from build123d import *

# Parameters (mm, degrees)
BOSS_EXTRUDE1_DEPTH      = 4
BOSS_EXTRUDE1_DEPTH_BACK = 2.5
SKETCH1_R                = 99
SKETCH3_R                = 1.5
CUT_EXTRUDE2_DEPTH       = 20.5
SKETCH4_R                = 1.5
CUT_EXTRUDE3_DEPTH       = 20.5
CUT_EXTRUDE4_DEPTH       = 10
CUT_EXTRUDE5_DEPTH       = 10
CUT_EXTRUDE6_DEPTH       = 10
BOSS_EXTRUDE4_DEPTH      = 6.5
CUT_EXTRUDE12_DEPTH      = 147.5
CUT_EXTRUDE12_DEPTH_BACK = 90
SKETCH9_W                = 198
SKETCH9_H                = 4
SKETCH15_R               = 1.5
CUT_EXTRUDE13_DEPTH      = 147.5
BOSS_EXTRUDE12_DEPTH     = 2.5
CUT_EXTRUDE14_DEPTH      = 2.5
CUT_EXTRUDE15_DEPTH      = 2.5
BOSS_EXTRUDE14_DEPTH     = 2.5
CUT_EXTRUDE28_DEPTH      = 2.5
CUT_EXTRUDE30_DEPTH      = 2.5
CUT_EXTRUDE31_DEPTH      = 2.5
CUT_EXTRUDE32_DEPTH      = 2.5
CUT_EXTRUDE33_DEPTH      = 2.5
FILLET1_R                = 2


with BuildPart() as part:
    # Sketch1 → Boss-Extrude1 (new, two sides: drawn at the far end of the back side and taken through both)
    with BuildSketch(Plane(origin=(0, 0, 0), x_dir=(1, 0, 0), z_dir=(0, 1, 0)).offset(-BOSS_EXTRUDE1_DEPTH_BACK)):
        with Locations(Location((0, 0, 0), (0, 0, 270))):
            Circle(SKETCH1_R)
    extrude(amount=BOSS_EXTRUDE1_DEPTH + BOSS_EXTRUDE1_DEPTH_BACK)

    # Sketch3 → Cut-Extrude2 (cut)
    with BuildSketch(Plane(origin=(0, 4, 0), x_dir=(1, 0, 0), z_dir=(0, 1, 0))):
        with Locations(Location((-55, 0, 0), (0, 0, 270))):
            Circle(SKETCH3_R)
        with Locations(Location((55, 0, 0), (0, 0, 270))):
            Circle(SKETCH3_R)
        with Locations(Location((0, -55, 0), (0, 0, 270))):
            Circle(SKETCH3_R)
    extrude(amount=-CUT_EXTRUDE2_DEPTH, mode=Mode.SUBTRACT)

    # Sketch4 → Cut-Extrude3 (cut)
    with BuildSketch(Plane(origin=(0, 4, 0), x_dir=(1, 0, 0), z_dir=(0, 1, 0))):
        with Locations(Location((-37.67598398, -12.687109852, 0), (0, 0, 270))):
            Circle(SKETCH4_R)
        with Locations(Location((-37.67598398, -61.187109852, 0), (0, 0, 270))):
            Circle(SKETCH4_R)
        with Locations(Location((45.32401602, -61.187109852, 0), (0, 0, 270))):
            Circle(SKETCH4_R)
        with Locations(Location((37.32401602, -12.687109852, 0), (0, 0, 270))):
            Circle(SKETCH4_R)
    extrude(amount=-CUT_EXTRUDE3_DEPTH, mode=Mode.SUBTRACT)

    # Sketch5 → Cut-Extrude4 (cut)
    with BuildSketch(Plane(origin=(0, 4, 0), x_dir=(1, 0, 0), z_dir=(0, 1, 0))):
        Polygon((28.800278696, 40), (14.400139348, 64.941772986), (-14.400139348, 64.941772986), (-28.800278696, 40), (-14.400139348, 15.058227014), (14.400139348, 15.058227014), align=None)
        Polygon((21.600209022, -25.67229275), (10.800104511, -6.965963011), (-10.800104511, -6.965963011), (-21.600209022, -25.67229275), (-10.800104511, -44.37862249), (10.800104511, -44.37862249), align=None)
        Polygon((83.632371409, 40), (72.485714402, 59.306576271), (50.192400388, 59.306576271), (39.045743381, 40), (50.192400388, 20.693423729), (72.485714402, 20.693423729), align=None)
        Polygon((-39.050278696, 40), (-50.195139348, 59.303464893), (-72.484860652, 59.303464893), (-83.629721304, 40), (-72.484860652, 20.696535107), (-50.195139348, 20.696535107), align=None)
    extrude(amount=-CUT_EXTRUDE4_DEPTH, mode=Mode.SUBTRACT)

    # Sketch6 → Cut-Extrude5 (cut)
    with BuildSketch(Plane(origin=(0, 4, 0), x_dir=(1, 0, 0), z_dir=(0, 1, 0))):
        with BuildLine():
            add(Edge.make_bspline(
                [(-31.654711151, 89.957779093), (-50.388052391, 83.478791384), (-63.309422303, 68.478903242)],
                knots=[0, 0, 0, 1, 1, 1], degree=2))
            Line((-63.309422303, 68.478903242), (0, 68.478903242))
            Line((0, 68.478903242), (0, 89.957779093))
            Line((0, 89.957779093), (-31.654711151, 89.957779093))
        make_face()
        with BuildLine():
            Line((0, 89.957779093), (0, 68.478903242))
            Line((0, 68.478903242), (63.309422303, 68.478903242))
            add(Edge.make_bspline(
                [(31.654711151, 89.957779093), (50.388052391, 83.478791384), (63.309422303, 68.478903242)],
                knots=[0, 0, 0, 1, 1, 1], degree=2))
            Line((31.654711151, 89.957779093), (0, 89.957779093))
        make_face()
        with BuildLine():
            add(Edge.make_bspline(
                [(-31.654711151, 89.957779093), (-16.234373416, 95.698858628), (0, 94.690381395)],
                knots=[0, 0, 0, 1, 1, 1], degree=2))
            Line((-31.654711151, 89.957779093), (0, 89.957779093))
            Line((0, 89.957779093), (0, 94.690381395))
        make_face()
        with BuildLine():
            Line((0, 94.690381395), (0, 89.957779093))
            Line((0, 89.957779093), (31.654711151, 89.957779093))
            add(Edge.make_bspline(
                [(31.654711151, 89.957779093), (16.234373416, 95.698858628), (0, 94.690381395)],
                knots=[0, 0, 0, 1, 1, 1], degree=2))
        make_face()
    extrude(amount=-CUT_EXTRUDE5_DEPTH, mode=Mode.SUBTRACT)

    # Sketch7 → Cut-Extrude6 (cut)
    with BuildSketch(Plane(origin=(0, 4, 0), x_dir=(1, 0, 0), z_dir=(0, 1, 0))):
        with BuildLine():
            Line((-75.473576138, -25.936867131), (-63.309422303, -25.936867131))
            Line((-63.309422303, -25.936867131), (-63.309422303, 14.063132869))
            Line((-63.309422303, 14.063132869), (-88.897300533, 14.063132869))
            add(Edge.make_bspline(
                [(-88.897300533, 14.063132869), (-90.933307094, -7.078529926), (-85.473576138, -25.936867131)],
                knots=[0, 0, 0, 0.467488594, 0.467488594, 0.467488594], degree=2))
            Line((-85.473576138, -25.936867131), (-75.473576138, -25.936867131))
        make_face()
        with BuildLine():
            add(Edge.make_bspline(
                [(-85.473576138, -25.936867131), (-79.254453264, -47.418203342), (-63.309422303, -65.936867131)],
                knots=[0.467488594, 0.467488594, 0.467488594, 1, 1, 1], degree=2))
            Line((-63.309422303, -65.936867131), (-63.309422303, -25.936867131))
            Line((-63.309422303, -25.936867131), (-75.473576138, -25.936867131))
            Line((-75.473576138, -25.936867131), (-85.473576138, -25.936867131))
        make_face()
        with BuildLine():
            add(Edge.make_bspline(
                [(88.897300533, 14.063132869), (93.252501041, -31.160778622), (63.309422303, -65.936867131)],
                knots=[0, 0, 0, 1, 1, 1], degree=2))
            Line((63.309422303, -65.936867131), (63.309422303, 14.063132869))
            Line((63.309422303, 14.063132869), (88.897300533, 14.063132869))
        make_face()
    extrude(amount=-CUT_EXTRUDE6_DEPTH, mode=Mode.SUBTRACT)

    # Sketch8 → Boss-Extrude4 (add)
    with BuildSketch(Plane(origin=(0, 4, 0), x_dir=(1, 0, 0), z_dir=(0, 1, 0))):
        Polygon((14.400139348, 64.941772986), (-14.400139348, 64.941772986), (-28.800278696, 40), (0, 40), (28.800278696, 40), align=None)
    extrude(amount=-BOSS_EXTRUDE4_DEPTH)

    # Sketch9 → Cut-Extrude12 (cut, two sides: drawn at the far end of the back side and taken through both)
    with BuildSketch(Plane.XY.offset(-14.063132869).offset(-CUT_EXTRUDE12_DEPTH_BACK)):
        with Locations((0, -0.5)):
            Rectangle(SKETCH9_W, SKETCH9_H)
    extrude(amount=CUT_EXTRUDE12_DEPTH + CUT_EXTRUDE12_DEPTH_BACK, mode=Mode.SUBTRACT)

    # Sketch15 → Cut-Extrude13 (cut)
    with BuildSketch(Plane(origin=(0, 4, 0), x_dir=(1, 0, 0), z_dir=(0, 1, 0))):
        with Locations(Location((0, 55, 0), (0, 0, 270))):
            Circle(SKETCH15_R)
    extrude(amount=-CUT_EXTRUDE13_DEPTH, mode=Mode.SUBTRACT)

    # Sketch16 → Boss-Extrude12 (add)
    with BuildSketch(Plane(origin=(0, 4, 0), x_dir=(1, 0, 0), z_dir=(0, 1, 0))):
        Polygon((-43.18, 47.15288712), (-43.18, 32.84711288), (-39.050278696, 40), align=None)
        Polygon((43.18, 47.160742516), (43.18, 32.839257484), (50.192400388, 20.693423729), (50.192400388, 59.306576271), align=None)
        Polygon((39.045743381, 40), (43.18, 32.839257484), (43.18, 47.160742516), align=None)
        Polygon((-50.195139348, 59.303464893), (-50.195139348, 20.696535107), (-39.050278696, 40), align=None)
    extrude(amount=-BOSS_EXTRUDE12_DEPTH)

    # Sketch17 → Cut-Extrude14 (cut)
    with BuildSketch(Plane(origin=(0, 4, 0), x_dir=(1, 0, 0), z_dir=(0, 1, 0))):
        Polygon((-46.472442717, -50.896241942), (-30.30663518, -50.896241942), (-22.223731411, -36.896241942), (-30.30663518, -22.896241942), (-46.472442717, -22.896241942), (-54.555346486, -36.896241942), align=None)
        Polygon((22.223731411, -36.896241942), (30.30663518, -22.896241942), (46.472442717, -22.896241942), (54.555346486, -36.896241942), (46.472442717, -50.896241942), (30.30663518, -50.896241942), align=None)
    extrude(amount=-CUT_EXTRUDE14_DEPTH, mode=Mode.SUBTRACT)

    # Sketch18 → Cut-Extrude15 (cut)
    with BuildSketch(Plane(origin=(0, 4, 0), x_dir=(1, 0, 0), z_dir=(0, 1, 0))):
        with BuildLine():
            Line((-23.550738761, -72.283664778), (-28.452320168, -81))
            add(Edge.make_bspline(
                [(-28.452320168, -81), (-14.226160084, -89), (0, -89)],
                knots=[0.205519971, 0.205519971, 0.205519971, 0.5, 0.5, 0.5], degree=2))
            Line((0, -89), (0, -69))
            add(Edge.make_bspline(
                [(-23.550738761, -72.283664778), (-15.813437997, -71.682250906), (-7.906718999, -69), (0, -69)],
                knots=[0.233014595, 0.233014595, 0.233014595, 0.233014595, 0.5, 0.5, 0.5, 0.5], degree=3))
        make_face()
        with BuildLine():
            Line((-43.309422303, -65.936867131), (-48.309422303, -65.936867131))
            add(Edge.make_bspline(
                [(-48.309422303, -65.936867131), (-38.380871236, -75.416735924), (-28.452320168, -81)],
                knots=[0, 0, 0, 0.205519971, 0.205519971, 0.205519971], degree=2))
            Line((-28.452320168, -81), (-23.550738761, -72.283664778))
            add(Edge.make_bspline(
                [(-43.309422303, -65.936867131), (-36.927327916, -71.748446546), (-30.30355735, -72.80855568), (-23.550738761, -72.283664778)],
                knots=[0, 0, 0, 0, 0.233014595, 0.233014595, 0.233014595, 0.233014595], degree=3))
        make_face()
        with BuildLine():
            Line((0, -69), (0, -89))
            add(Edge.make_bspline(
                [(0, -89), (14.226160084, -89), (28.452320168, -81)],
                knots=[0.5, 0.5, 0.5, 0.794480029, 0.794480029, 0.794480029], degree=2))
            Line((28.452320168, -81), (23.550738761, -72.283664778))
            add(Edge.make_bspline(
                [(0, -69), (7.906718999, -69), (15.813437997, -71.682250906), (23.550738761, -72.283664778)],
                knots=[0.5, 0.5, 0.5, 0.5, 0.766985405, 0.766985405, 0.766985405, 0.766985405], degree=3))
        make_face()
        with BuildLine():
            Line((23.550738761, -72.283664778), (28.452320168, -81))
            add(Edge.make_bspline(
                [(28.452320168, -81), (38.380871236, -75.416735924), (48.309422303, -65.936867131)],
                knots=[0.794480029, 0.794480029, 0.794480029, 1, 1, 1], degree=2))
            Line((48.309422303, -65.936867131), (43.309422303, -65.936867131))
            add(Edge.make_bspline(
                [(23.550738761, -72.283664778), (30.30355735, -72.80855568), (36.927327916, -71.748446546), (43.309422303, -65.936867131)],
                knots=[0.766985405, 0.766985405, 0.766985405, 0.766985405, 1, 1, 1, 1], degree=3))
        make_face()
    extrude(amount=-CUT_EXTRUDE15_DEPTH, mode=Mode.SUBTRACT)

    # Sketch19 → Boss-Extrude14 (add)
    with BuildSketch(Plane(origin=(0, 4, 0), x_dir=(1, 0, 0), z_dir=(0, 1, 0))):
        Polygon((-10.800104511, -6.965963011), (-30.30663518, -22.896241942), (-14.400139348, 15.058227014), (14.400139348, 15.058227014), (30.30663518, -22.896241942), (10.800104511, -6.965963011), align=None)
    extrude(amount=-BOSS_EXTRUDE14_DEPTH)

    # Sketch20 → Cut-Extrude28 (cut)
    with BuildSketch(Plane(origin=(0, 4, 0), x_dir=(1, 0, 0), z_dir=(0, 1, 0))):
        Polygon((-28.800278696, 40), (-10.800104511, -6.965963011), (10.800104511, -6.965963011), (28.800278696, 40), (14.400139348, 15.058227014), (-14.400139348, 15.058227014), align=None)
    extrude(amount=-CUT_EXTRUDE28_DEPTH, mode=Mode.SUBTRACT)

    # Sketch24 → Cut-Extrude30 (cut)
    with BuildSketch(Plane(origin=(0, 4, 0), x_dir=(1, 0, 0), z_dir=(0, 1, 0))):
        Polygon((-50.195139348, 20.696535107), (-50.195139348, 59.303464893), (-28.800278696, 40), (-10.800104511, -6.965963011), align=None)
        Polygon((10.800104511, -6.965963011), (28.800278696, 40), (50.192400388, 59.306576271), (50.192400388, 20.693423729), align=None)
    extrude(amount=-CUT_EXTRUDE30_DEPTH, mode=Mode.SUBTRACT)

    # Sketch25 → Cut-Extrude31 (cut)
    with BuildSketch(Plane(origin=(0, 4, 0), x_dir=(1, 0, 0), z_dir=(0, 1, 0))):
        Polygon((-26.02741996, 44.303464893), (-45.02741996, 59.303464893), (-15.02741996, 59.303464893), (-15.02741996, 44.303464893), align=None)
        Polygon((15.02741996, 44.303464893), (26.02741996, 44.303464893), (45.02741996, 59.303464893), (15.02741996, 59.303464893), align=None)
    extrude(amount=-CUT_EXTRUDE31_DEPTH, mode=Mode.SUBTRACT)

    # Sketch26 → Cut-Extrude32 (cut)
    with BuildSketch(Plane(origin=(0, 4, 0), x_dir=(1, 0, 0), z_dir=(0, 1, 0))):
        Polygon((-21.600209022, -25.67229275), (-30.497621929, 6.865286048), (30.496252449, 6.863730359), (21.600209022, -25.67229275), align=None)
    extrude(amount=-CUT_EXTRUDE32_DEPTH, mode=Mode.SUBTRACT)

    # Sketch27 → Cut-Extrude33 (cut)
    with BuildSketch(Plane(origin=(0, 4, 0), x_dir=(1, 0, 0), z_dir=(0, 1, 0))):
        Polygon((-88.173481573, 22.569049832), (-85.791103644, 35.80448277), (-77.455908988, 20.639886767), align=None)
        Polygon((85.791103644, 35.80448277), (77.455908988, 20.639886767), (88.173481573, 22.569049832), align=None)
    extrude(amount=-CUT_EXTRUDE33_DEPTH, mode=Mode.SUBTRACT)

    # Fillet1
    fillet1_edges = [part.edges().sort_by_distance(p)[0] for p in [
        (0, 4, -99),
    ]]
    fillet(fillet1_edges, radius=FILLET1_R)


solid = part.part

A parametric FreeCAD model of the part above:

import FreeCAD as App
import Part
import Sketcher
from FreeCAD import Vector
Q = App.Units.Quantity


def edges_at(feature, points):
    """Names of the edges that pass closest to the given points."""
    edges = feature.Shape.Edges
    near = lambda p: min(range(len(edges)), key=lambda i: edges[i].distToShape(Part.Vertex(*p))[0])
    return sorted({f"Edge{near(p) + 1}" for p in points})

doc = App.newDocument("Part")
body = doc.addObject("PartDesign::Body", "Body")

sketch1 = doc.addObject("Sketcher::SketchObject", "Sketch")
body.addObject(sketch1)
sketch1.AttachmentSupport = (doc.XZ_Plane, [""])
sketch1.MapMode = "FlatFace"
sketch1.addGeometry(Part.Circle(Vector(0, 0, 0), Vector(0, 0, 1), 99), False)
sketch1.addConstraint([
    Sketcher.Constraint("Coincident", 0, 3, -1, 1),
    Sketcher.Constraint("Diameter", 0, Q("198 mm")),
])
pad1 = doc.addObject("PartDesign::Pad", "Pad")
body.addObject(pad1)
pad1.Profile = sketch1
pad1.Type = "TwoLengths"
pad1.Length = 4
pad1.Length2 = 2.5
pad1.Reversed = True

sketch2 = doc.addObject("Sketcher::SketchObject", "Sketch001")
body.addObject(sketch2)
sketch2.AttachmentSupport = (doc.XZ_Plane, [""])
sketch2.MapMode = "FlatFace"
sketch2.AttachmentOffset = App.Placement(Vector(0, 0, -4), App.Rotation())
sketch2.addGeometry([
    Part.Circle(Vector(-55, 0, 0), Vector(0, 0, 1), 1.5),
    Part.Circle(Vector(55, 0, 0), Vector(0, 0, 1), 1.5),
    Part.Circle(Vector(0, 55, 0), Vector(0, 0, 1), 1.5),
], False)
sketch2.addConstraint([
    Sketcher.Constraint("Equal", 0, 1),
    Sketcher.Constraint("Equal", 1, 2),
    Sketcher.Constraint("Symmetric", 0, 3, 1, 3, -1, 1),
    Sketcher.Constraint("PointOnObject", 0, 3, -1),
    Sketcher.Constraint("PointOnObject", 2, 3, -2),
    Sketcher.Constraint("Diameter", 0, Q("3 mm")),
    Sketcher.Constraint("DistanceX", 0, 3, -1, 1, Q("55 mm")),
    Sketcher.Constraint("DistanceY", -1, 1, 2, 3, Q("55 mm")),
])
pocket1 = doc.addObject("PartDesign::Pocket", "Pocket")
body.addObject(pocket1)
pocket1.Profile = sketch2
pocket1.Length = 20.5
pocket1.Reversed = True

sketch3 = doc.addObject("Sketcher::SketchObject", "Sketch002")
body.addObject(sketch3)
sketch3.AttachmentSupport = (doc.XZ_Plane, [""])
sketch3.MapMode = "FlatFace"
sketch3.AttachmentOffset = App.Placement(Vector(0, 0, -4), App.Rotation())
sketch3.addGeometry([
    Part.Circle(Vector(-37.675984, 12.68711, 0), Vector(0, 0, 1), 1.5),
    Part.Circle(Vector(-37.675984, 61.18711, 0), Vector(0, 0, 1), 1.5),
    Part.Circle(Vector(45.324016, 61.18711, 0), Vector(0, 0, 1), 1.5),
    Part.Circle(Vector(37.324016, 12.68711, 0), Vector(0, 0, 1), 1.5),
], False)
sketch3.addConstraint([
    Sketcher.Constraint("Equal", 0, 1),
    Sketcher.Constraint("Equal", 1, 2),
    Sketcher.Constraint("Equal", 2, 3),
    Sketcher.Constraint("Horizontal", 1, 3, 2, 3),
    Sketcher.Constraint("Horizontal", 0, 3, 3, 3),
    Sketcher.Constraint("Vertical", 0, 3, 1, 3),
    Sketcher.Constraint("Diameter", 0, Q("3 mm")),
    Sketcher.Constraint("DistanceX", 1, 3, 2, 3, Q("83 mm")),
    Sketcher.Constraint("DistanceX", 3, 3, 2, 3, Q("8 mm")),
    Sketcher.Constraint("DistanceY", 0, 3, 1, 3, Q("48.5 mm")),
    Sketcher.Constraint("DistanceY", -1, 1, 0, 3, Q("12.68711 mm")),
    Sketcher.Constraint("DistanceX", 0, 3, -1, 1, Q("37.675984 mm")),
])
pocket2 = doc.addObject("PartDesign::Pocket", "Pocket001")
body.addObject(pocket2)
pocket2.Profile = sketch3
pocket2.Length = 20.5
pocket2.Reversed = True

sketch4 = doc.addObject("Sketcher::SketchObject", "Sketch003")
body.addObject(sketch4)
sketch4.AttachmentSupport = (doc.XZ_Plane, [""])
sketch4.MapMode = "FlatFace"
sketch4.AttachmentOffset = App.Placement(Vector(0, 0, -4), App.Rotation())
sketch4.addGeometry([
    Part.LineSegment(Vector(28.800279, -40, 0), Vector(14.400139, -64.941773, 0)),
    Part.LineSegment(Vector(14.400139, -64.941773, 0), Vector(-14.400139, -64.941773, 0)),
    Part.LineSegment(Vector(-14.400139, -64.941773, 0), Vector(-28.800279, -40, 0)),
    Part.LineSegment(Vector(-28.800279, -40, 0), Vector(-14.400139, -15.058227, 0)),
    Part.LineSegment(Vector(-14.400139, -15.058227, 0), Vector(14.400139, -15.058227, 0)),
    Part.LineSegment(Vector(14.400139, -15.058227, 0), Vector(28.800279, -40, 0)),
    Part.LineSegment(Vector(21.600209, 25.672293, 0), Vector(10.800105, 6.965963, 0)),
    Part.LineSegment(Vector(10.800105, 6.965963, 0), Vector(-10.800105, 6.965963, 0)),
    Part.LineSegment(Vector(-10.800105, 6.965963, 0), Vector(-21.600209, 25.672293, 0)),
    Part.LineSegment(Vector(-21.600209, 25.672293, 0), Vector(-10.800105, 44.378622, 0)),
    Part.LineSegment(Vector(-10.800105, 44.378622, 0), Vector(10.800105, 44.378622, 0)),
    Part.LineSegment(Vector(10.800105, 44.378622, 0), Vector(21.600209, 25.672293, 0)),
    Part.LineSegment(Vector(83.632371, -40, 0), Vector(72.485714, -59.306576, 0)),
    Part.LineSegment(Vector(72.485714, -59.306576, 0), Vector(50.1924, -59.306576, 0)),
    Part.LineSegment(Vector(50.1924, -59.306576, 0), Vector(39.045743, -40, 0)),
    Part.LineSegment(Vector(39.045743, -40, 0), Vector(50.1924, -20.693424, 0)),
    Part.LineSegment(Vector(50.1924, -20.693424, 0), Vector(72.485714, -20.693424, 0)),
    Part.LineSegment(Vector(72.485714, -20.693424, 0), Vector(83.632371, -40, 0)),
    Part.LineSegment(Vector(-39.050279, -40, 0), Vector(-50.195139, -59.303465, 0)),
    Part.LineSegment(Vector(-50.195139, -59.303465, 0), Vector(-72.484861, -59.303465, 0)),
    Part.LineSegment(Vector(-72.484861, -59.303465, 0), Vector(-83.629721, -40, 0)),
    Part.LineSegment(Vector(-83.629721, -40, 0), Vector(-72.484861, -20.696535, 0)),
    Part.LineSegment(Vector(-72.484861, -20.696535, 0), Vector(-50.195139, -20.696535, 0)),
    Part.LineSegment(Vector(-50.195139, -20.696535, 0), Vector(-39.050279, -40, 0)),
], False)
sketch4.addConstraint([
    Sketcher.Constraint("Coincident", 0, 2, 1, 1),
    Sketcher.Constraint("Coincident", 1, 2, 2, 1),
    Sketcher.Constraint("Coincident", 2, 2, 3, 1),
    Sketcher.Constraint("Coincident", 3, 2, 4, 1),
    Sketcher.Constraint("Coincident", 4, 2, 5, 1),
    Sketcher.Constraint("Coincident", 5, 2, 0, 1),
    Sketcher.Constraint("Coincident", 6, 2, 7, 1),
    Sketcher.Constraint("Coincident", 7, 2, 8, 1),
    Sketcher.Constraint("Coincident", 8, 2, 9, 1),
    Sketcher.Constraint("Coincident", 9, 2, 10, 1),
    Sketcher.Constraint("Coincident", 10, 2, 11, 1),
    Sketcher.Constraint("Coincident", 11, 2, 6, 1),
    Sketcher.Constraint("Coincident", 12, 2, 13, 1),
    Sketcher.Constraint("Coincident", 13, 2, 14, 1),
    Sketcher.Constraint("Coincident", 14, 2, 15, 1),
    Sketcher.Constraint("Coincident", 15, 2, 16, 1),
    Sketcher.Constraint("Coincident", 16, 2, 17, 1),
    Sketcher.Constraint("Coincident", 17, 2, 12, 1),
    Sketcher.Constraint("Coincident", 18, 2, 19, 1),
    Sketcher.Constraint("Coincident", 19, 2, 20, 1),
    Sketcher.Constraint("Coincident", 20, 2, 21, 1),
    Sketcher.Constraint("Coincident", 21, 2, 22, 1),
    Sketcher.Constraint("Coincident", 22, 2, 23, 1),
    Sketcher.Constraint("Coincident", 23, 2, 18, 1),
    Sketcher.Constraint("Horizontal", 1),
    Sketcher.Constraint("Horizontal", 4),
    Sketcher.Constraint("Horizontal", 7),
    Sketcher.Constraint("Horizontal", 10),
    Sketcher.Constraint("Horizontal", 13),
    Sketcher.Constraint("Horizontal", 16),
    Sketcher.Constraint("Horizontal", 19),
    Sketcher.Constraint("Horizontal", 22),
    Sketcher.Constraint("Symmetric", 2, 2, 5, 2, -2),
    Sketcher.Constraint("Symmetric", 8, 2, 11, 2, -2),
    Sketcher.Constraint("Parallel", 0, 3),
    Sketcher.Constraint("Parallel", 2, 5),
    Sketcher.Constraint("Parallel", 3, 6),
    Sketcher.Constraint("Parallel", 5, 8),
    Sketcher.Constraint("Parallel", 6, 9),
    Sketcher.Constraint("Parallel", 8, 11),
    Sketcher.Constraint("Parallel", 9, 12),
    Sketcher.Constraint("Parallel", 11, 14),
    Sketcher.Constraint("Parallel", 12, 15),
    Sketcher.Constraint("Parallel", 14, 17),
    Sketcher.Constraint("Parallel", 15, 18),
    Sketcher.Constraint("Parallel", 17, 20),
    Sketcher.Constraint("Parallel", 18, 21),
    Sketcher.Constraint("Parallel", 20, 23),
    Sketcher.Constraint("Horizontal", 5, 2, 14, 2),
    Sketcher.Constraint("Horizontal", 14, 2, 17, 2),
    Sketcher.Constraint("Horizontal", 17, 2, 20, 2),
    Sketcher.Constraint("Horizontal", 20, 2, 23, 2),
    Sketcher.Constraint("Vertical", 1, 2, 3, 2),
    Sketcher.Constraint("Vertical", 0, 2, 4, 2),
    Sketcher.Constraint("Vertical", 7, 2, 9, 2),
    Sketcher.Constraint("Vertical", 13, 2, 15, 2),
    Sketcher.Constraint("Vertical", 19, 2, 21, 2),
    Sketcher.Constraint("Angle", 0, Q("-120 deg")),
    Sketcher.Constraint("DistanceY", 2, 2, -1, 1, Q("40 mm")),
    Sketcher.Constraint("DistanceX", 23, 2, 2, 2, Q("10.25 mm")),
    Sketcher.Constraint("DistanceX", 18, 2, 1, 2, Q("35.795 mm")),
    Sketcher.Constraint("DistanceX", 19, 2, 0, 2, Q("86.885 mm")),
    Sketcher.Constraint("DistanceX", 1, 2, 1, 1, Q("28.800279 mm")),
    Sketcher.Constraint("DistanceX", 7, 2, 7, 1, Q("21.600209 mm")),
    Sketcher.Constraint("DistanceX", -1, 1, 13, 2, Q("50.1924 mm")),
    Sketcher.Constraint("Distance", 0, Q("28.800279 mm")),
    Sketcher.Constraint("Distance", 6, Q("21.600209 mm")),
    Sketcher.Constraint("DistanceX", 13, 2, 13, 1, Q("22.293314 mm")),
    Sketcher.Constraint("DistanceX", -1, 1, 17, 2, Q("83.632371 mm")),
    Sketcher.Constraint("DistanceY", 4, 2, 6, 2, Q("22.02419 mm")),
])
pocket3 = doc.addObject("PartDesign::Pocket", "Pocket002")
body.addObject(pocket3)
pocket3.Profile = sketch4
pocket3.Length = 10
pocket3.Reversed = True

sketch5 = doc.addObject("Sketcher::SketchObject", "Sketch004")
body.addObject(sketch5)
sketch5.AttachmentSupport = (doc.XZ_Plane, [""])
sketch5.MapMode = "FlatFace"
sketch5.AttachmentOffset = App.Placement(Vector(0, 0, -4), App.Rotation())
sketch5.addGeometry([
    Part.BSplineCurve([Vector(-31.654711, -89.957779, 0), Vector(-50.388052, -83.478791, 0), Vector(-63.309422, -68.478903, 0)], [3, 3], [0, 1], False, 2, [1, 1, 1], False),
    Part.LineSegment(Vector(-63.309422, -68.478903, 0), Vector(63.309422, -68.478903, 0)),
    Part.BSplineCurve([Vector(31.654711, -89.957779, 0), Vector(50.388052, -83.478791, 0), Vector(63.309422, -68.478903, 0)], [3, 3], [0, 1], False, 2, [1, 1, 1], False),
    Part.BSplineCurve([Vector(31.654711, -89.957779, 0), Vector(16.234373, -95.698859, 0), Vector(0, -94.690381, 0)], [3, 3], [0, 1], False, 2, [1, 1, 1], False),
    Part.BSplineCurve([Vector(-31.654711, -89.957779, 0), Vector(-16.234373, -95.698859, 0), Vector(0, -94.690381, 0)], [3, 3], [0, 1], False, 2, [1, 1, 1], False),
], False)
sketch5.addConstraint([
    Sketcher.Constraint("Block", 0),
    Sketcher.Constraint("Block", 2),
    Sketcher.Constraint("Block", 3),
    Sketcher.Constraint("Block", 4),
    Sketcher.Constraint("Coincident", 0, 2, 1, 1),
    Sketcher.Constraint("Coincident", 1, 2, 2, 2),
])
pocket4 = doc.addObject("PartDesign::Pocket", "Pocket003")
body.addObject(pocket4)
pocket4.Profile = sketch5
pocket4.Length = 10
pocket4.Reversed = True

sketch6 = doc.addObject("Sketcher::SketchObject", "Sketch005")
body.addObject(sketch6)
sketch6.AttachmentSupport = (doc.XZ_Plane, [""])
sketch6.MapMode = "FlatFace"
sketch6.AttachmentOffset = App.Placement(Vector(0, 0, -4), App.Rotation())
sketch6.addGeometry([
    Part.LineSegment(Vector(-63.309422, -14.063133, 0), Vector(-88.897301, -14.063133, 0)),
    Part.BSplineCurve([Vector(-88.897301, -14.063133, 0), Vector(-90.933307, 7.07853, 0), Vector(-85.473576, 25.936867, 0)], [3, 3], [0, 0.467488594], False, 2, [1, 1, 1], False),
    Part.BSplineCurve([Vector(-85.473576, 25.936867, 0), Vector(-79.254453, 47.418203, 0), Vector(-63.309422, 65.936867, 0)], [3, 3], [0.467488594, 1], False, 2, [1, 1, 1], False),
    Part.LineSegment(Vector(-63.309422, 65.936867, 0), Vector(-63.309422, -14.063133, 0)),
    Part.BSplineCurve([Vector(88.897301, -14.063133, 0), Vector(93.252501, 31.160779, 0), Vector(63.309422, 65.936867, 0)], [3, 3], [0, 1], False, 2, [1, 1, 1], False),
    Part.LineSegment(Vector(88.897301, -14.063133, 0), Vector(63.309422, -14.063133, 0)),
    Part.LineSegment(Vector(63.309422, -14.063133, 0), Vector(63.309422, 65.936867, 0)),
], False)
sketch6.addConstraint([
    Sketcher.Constraint("Block", 1),
    Sketcher.Constraint("Block", 2),
    Sketcher.Constraint("Block", 4),
    Sketcher.Constraint("Coincident", 0, 2, 1, 1),
    Sketcher.Constraint("Coincident", 2, 2, 3, 1),
    Sketcher.Constraint("Coincident", 3, 2, 0, 1),
    Sketcher.Constraint("Coincident", 4, 1, 5, 1),
    Sketcher.Constraint("Coincident", 5, 2, 6, 1),
    Sketcher.Constraint("Coincident", 6, 2, 4, 2),
    Sketcher.Constraint("Horizontal", 0),
    Sketcher.Constraint("Vertical", 3),
    Sketcher.Constraint("Horizontal", 5),
    Sketcher.Constraint("Vertical", 6),
])
pocket5 = doc.addObject("PartDesign::Pocket", "Pocket004")
body.addObject(pocket5)
pocket5.Profile = sketch6
pocket5.Length = 10
pocket5.Reversed = True

sketch7 = doc.addObject("Sketcher::SketchObject", "Sketch006")
body.addObject(sketch7)
sketch7.AttachmentSupport = (doc.XZ_Plane, [""])
sketch7.MapMode = "FlatFace"
sketch7.AttachmentOffset = App.Placement(Vector(0, 0, -4), App.Rotation())
sketch7.addGeometry([
    Part.LineSegment(Vector(14.400139, -64.941773, 0), Vector(-14.400139, -64.941773, 0)),
    Part.LineSegment(Vector(-14.400139, -64.941773, 0), Vector(-28.800279, -40, 0)),
    Part.LineSegment(Vector(-28.800279, -40, 0), Vector(28.800279, -40, 0)),
    Part.LineSegment(Vector(28.800279, -40, 0), Vector(14.400139, -64.941773, 0)),
], False)
sketch7.addConstraint([
    Sketcher.Constraint("Coincident", 0, 2, 1, 1),
    Sketcher.Constraint("Coincident", 1, 2, 2, 1),
    Sketcher.Constraint("Coincident", 2, 2, 3, 1),
    Sketcher.Constraint("Coincident", 3, 2, 0, 1),
    Sketcher.Constraint("Horizontal", 0),
    Sketcher.Constraint("Horizontal", 2),
    Sketcher.Constraint("Equal", 1, 3),
    Sketcher.Constraint("Angle", 1, Q("120 deg")),
    Sketcher.Constraint("DistanceY", 1, 2, -1, 1, Q("40 mm")),
    Sketcher.Constraint("DistanceX", 0, 2, 0, 1, Q("28.800279 mm")),
    Sketcher.Constraint("Distance", 1, Q("28.800279 mm")),
    Sketcher.Constraint("DistanceX", 0, 2, -1, 1, Q("14.400139 mm")),
])
pad2 = doc.addObject("PartDesign::Pad", "Pad001")
body.addObject(pad2)
pad2.Profile = sketch7
pad2.Length = 6.5

sketch8 = doc.addObject("Sketcher::SketchObject", "Sketch007")
body.addObject(sketch8)
sketch8.AttachmentSupport = (doc.XY_Plane, [""])
sketch8.MapMode = "FlatFace"
sketch8.AttachmentOffset = App.Placement(Vector(0, 0, -14.063133), App.Rotation())
sketch8.addGeometry([
    Part.LineSegment(Vector(-99, 1.5, 0), Vector(-99, -2.5, 0)),
    Part.LineSegment(Vector(-99, -2.5, 0), Vector(99, -2.5, 0)),
    Part.LineSegment(Vector(99, -2.5, 0), Vector(99, 1.5, 0)),
    Part.LineSegment(Vector(99, 1.5, 0), Vector(-99, 1.5, 0)),
], False)
sketch8.addConstraint([
    Sketcher.Constraint("Coincident", 0, 2, 1, 1),
    Sketcher.Constraint("Coincident", 1, 2, 2, 1),
    Sketcher.Constraint("Coincident", 2, 2, 3, 1),
    Sketcher.Constraint("Coincident", 3, 2, 0, 1),
    Sketcher.Constraint("Vertical", 0),
    Sketcher.Constraint("Horizontal", 1),
    Sketcher.Constraint("Vertical", 2),
    Sketcher.Constraint("Horizontal", 3),
    Sketcher.Constraint("DistanceX", 1, 1, 1, 2, Q("198 mm")),
    Sketcher.Constraint("DistanceY", 0, 2, 0, 1, Q("4 mm")),
    Sketcher.Constraint("DistanceX", 0, 2, -1, 1, Q("99 mm")),
    Sketcher.Constraint("DistanceY", 0, 2, -1, 1, Q("2.5 mm")),
])
pocket6 = doc.addObject("PartDesign::Pocket", "Pocket005")
body.addObject(pocket6)
pocket6.Profile = sketch8
pocket6.Type = "ThroughAll"
pocket6.Midplane = True

sketch9 = doc.addObject("Sketcher::SketchObject", "Sketch008")
body.addObject(sketch9)
sketch9.AttachmentSupport = (doc.XZ_Plane, [""])
sketch9.MapMode = "FlatFace"
sketch9.AttachmentOffset = App.Placement(Vector(0, 0, -4), App.Rotation())
sketch9.addGeometry(Part.Circle(Vector(0, -55, 0), Vector(0, 0, 1), 1.5), False)
sketch9.addConstraint([
    Sketcher.Constraint("PointOnObject", 0, 3, -2),
    Sketcher.Constraint("Diameter", 0, Q("3 mm")),
    Sketcher.Constraint("DistanceY", 0, 3, -1, 1, Q("55 mm")),
])
pocket7 = doc.addObject("PartDesign::Pocket", "Pocket006")
body.addObject(pocket7)
pocket7.Profile = sketch9
pocket7.Length = 147.5
pocket7.Reversed = True

sketch10 = doc.addObject("Sketcher::SketchObject", "Sketch009")
body.addObject(sketch10)
sketch10.AttachmentSupport = (doc.XZ_Plane, [""])
sketch10.MapMode = "FlatFace"
sketch10.AttachmentOffset = App.Placement(Vector(0, 0, -4), App.Rotation())
sketch10.addGeometry([
    Part.LineSegment(Vector(-43.18, -32.847113, 0), Vector(-39.050279, -40, 0)),
    Part.LineSegment(Vector(-39.050279, -40, 0), Vector(-43.18, -47.152887, 0)),
    Part.LineSegment(Vector(-43.18, -47.152887, 0), Vector(-50.195139, -59.303465, 0)),
    Part.LineSegment(Vector(-50.195139, -59.303465, 0), Vector(-50.195139, -20.696535, 0)),
    Part.LineSegment(Vector(-50.195139, -20.696535, 0), Vector(-43.18, -32.847113, 0)),
    Part.LineSegment(Vector(43.18, -32.839257, 0), Vector(50.1924, -20.693424, 0)),
    Part.LineSegment(Vector(50.1924, -20.693424, 0), Vector(50.1924, -59.306576, 0)),
    Part.LineSegment(Vector(50.1924, -59.306576, 0), Vector(43.18, -47.160743, 0)),
    Part.LineSegment(Vector(43.18, -47.160743, 0), Vector(39.045743, -40, 0)),
    Part.LineSegment(Vector(39.045743, -40, 0), Vector(43.18, -32.839257, 0)),
], False)
sketch10.addConstraint([
    Sketcher.Constraint("Coincident", 0, 2, 1, 1),
    Sketcher.Constraint("Coincident", 1, 2, 2, 1),
    Sketcher.Constraint("Coincident", 2, 2, 3, 1),
    Sketcher.Constraint("Coincident", 3, 2, 4, 1),
    Sketcher.Constraint("Coincident", 4, 2, 0, 1),
    Sketcher.Constraint("Coincident", 5, 2, 6, 1),
    Sketcher.Constraint("Coincident", 6, 2, 7, 1),
    Sketcher.Constraint("Coincident", 7, 2, 8, 1),
    Sketcher.Constraint("Coincident", 8, 2, 9, 1),
    Sketcher.Constraint("Coincident", 9, 2, 5, 1),
    Sketcher.Constraint("Vertical", 3),
    Sketcher.Constraint("Vertical", 6),
    Sketcher.Constraint("Parallel", 1, 2),
    Sketcher.Constraint("Parallel", 0, 4),
    Sketcher.Constraint("Parallel", 2, 5),
    Sketcher.Constraint("Parallel", 4, 7),
    Sketcher.Constraint("Parallel", 7, 8),
    Sketcher.Constraint("Parallel", 5, 9),
    Sketcher.Constraint("Horizontal", 0, 2, 8, 2),
    Sketcher.Constraint("Vertical", 1, 2, 4, 2),
    Sketcher.Constraint("Vertical", 7, 2, 9, 2),
    Sketcher.Constraint("Equal", 0, 1),
    Sketcher.Constraint("Angle", 0, Q("-60 deg")),
    Sketcher.Constraint("DistanceY", 0, 2, -1, 1, Q("40 mm")),
    Sketcher.Constraint("DistanceX", 1, 2, -1, 1, Q("43.18 mm")),
    Sketcher.Constraint("DistanceX", -1, 1, 7, 2, Q("43.18 mm")),
    Sketcher.Constraint("Distance", 5, Q("14.024801 mm")),
    Sketcher.Constraint("DistanceY", 3, 1, 3, 2, Q("38.60693 mm")),
    Sketcher.Constraint("Distance", 2, Q("14.030279 mm")),
    Sketcher.Constraint("DistanceY", 6, 2, 6, 1, Q("38.613153 mm")),
])
pad3 = doc.addObject("PartDesign::Pad", "Pad002")
body.addObject(pad3)
pad3.Profile = sketch10
pad3.Length = 2.5

sketch11 = doc.addObject("Sketcher::SketchObject", "Sketch010")
body.addObject(sketch11)
sketch11.AttachmentSupport = (doc.XZ_Plane, [""])
sketch11.MapMode = "FlatFace"
sketch11.AttachmentOffset = App.Placement(Vector(0, 0, -4), App.Rotation())
sketch11.addGeometry([
    Part.LineSegment(Vector(-46.472443, 50.896242, 0), Vector(-30.306635, 50.896242, 0)),
    Part.LineSegment(Vector(-30.306635, 50.896242, 0), Vector(-22.223731, 36.896242, 0)),
    Part.LineSegment(Vector(-22.223731, 36.896242, 0), Vector(-30.306635, 22.896242, 0)),
    Part.LineSegment(Vector(-30.306635, 22.896242, 0), Vector(-46.472443, 22.896242, 0)),
    Part.LineSegment(Vector(-46.472443, 22.896242, 0), Vector(-54.555346, 36.896242, 0)),
    Part.LineSegment(Vector(-54.555346, 36.896242, 0), Vector(-46.472443, 50.896242, 0)),
    Part.LineSegment(Vector(30.306635, 22.896242, 0), Vector(22.223731, 36.896242, 0)),
    Part.LineSegment(Vector(22.223731, 36.896242, 0), Vector(30.306635, 50.896242, 0)),
    Part.LineSegment(Vector(30.306635, 50.896242, 0), Vector(46.472443, 50.896242, 0)),
    Part.LineSegment(Vector(46.472443, 50.896242, 0), Vector(54.555346, 36.896242, 0)),
    Part.LineSegment(Vector(54.555346, 36.896242, 0), Vector(46.472443, 22.896242, 0)),
    Part.LineSegment(Vector(46.472443, 22.896242, 0), Vector(30.306635, 22.896242, 0)),
], False)
sketch11.addConstraint([
    Sketcher.Constraint("Coincident", 0, 2, 1, 1),
    Sketcher.Constraint("Coincident", 1, 2, 2, 1),
    Sketcher.Constraint("Coincident", 2, 2, 3, 1),
    Sketcher.Constraint("Coincident", 3, 2, 4, 1),
    Sketcher.Constraint("Coincident", 4, 2, 5, 1),
    Sketcher.Constraint("Coincident", 5, 2, 0, 1),
    Sketcher.Constraint("Coincident", 6, 2, 7, 1),
    Sketcher.Constraint("Coincident", 7, 2, 8, 1),
    Sketcher.Constraint("Coincident", 8, 2, 9, 1),
    Sketcher.Constraint("Coincident", 9, 2, 10, 1),
    Sketcher.Constraint("Coincident", 10, 2, 11, 1),
    Sketcher.Constraint("Coincident", 11, 2, 6, 1),
    Sketcher.Constraint("Horizontal", 0),
    Sketcher.Constraint("Horizontal", 3),
    Sketcher.Constraint("Horizontal", 8),
    Sketcher.Constraint("Horizontal", 11),
    Sketcher.Constraint("Symmetric", 1, 2, 6, 2, -2),
    Sketcher.Constraint("Symmetric", 0, 2, 7, 2, -2),
    Sketcher.Constraint("Symmetric", 4, 2, 9, 2, -2),
    Sketcher.Constraint("Symmetric", 3, 2, 10, 2, -2),
    Sketcher.Constraint("Parallel", 1, 4),
    Sketcher.Constraint("Parallel", 2, 5),
    Sketcher.Constraint("Parallel", 4, 6),
    Sketcher.Constraint("Parallel", 5, 7),
    Sketcher.Constraint("Parallel", 6, 9),
    Sketcher.Constraint("Horizontal", 1, 2, 4, 2),
    Sketcher.Constraint("Vertical", 0, 2, 2, 2),
    Sketcher.Constraint("Angle", 1, Q("-60 deg")),
    Sketcher.Constraint("DistanceY", 1, 2, 0, 2, Q("14 mm")),
    Sketcher.Constraint("DistanceX", 0, 1, 0, 2, Q("16.165808 mm")),
    Sketcher.Constraint("DistanceY", -1, 1, 0, 2, Q("50.896242 mm")),
    Sketcher.Constraint("DistanceX", 1, 2, -1, 1, Q("22.223731 mm")),
])
pocket8 = doc.addObject("PartDesign::Pocket", "Pocket007")
body.addObject(pocket8)
pocket8.Profile = sketch11
pocket8.Length = 2.5
pocket8.Reversed = True

sketch12 = doc.addObject("Sketcher::SketchObject", "Sketch011")
body.addObject(sketch12)
sketch12.AttachmentSupport = (doc.XZ_Plane, [""])
sketch12.MapMode = "FlatFace"
sketch12.AttachmentOffset = App.Placement(Vector(0, 0, -4), App.Rotation())
sketch12.addGeometry([
    Part.BSplineCurve([Vector(-28.45232, 81, 0), Vector(0, 97, 0), Vector(28.45232, 81, 0)], [3, 3], [0.205519971, 0.794480029], False, 2, [1, 1, 1], False),
    Part.BSplineCurve([Vector(28.45232, 81, 0), Vector(38.380871, 75.416736, 0), Vector(48.309422, 65.936867, 0)], [3, 3], [0.794480029, 1], False, 2, [1, 1, 1], False),
    Part.LineSegment(Vector(48.309422, 65.936867, 0), Vector(43.309422, 65.936867, 0)),
    Part.BSplineCurve([Vector(23.550739, 72.283665, 0), Vector(30.303557, 72.808556, 0), Vector(36.927328, 71.748447, 0), Vector(43.309422, 65.936867, 0)], [4, 4], [0.766985405, 1], False, 3, [1, 1, 1, 1], False),
    Part.BSplineCurve([Vector(23.550739, 72.283665, 0), Vector(15.813438, 71.682251, 0), Vector(0, 66.317749, 0), Vector(-15.813438, 71.682251, 0), Vector(-23.550739, 72.283665, 0)], [4, 1, 4], [0.5, 0.766985405, 1.03397081], False, 3, [1, 1, 1, 1, 1], False),
    Part.BSplineCurve([Vector(-43.309422, 65.936867, 0), Vector(-36.927328, 71.748447, 0), Vector(-30.303557, 72.808556, 0), Vector(-23.550739, 72.283665, 0)], [4, 4], [0, 0.233014595], False, 3, [1, 1, 1, 1], False),
    Part.LineSegment(Vector(-43.309422, 65.936867, 0), Vector(-48.309422, 65.936867, 0)),
    Part.BSplineCurve([Vector(-48.309422, 65.936867, 0), Vector(-38.380871, 75.416736, 0), Vector(-28.45232, 81, 0)], [3, 3], [0, 0.205519971], False, 2, [1, 1, 1], False),
], False)
sketch12.addConstraint([
    Sketcher.Constraint("Block", 0),
    Sketcher.Constraint("Block", 1),
    Sketcher.Constraint("Block", 3),
    Sketcher.Constraint("Block", 4),
    Sketcher.Constraint("Block", 5),
    Sketcher.Constraint("Block", 7),
    Sketcher.Constraint("Coincident", 1, 2, 2, 1),
    Sketcher.Constraint("Coincident", 2, 2, 3, 2),
    Sketcher.Constraint("Coincident", 5, 1, 6, 1),
    Sketcher.Constraint("Coincident", 6, 2, 7, 1),
])
pocket9 = doc.addObject("PartDesign::Pocket", "Pocket008")
body.addObject(pocket9)
pocket9.Profile = sketch12
pocket9.Length = 2.5
pocket9.Reversed = True

sketch13 = doc.addObject("Sketcher::SketchObject", "Sketch012")
body.addObject(sketch13)
sketch13.AttachmentSupport = (doc.XZ_Plane, [""])
sketch13.MapMode = "FlatFace"
sketch13.AttachmentOffset = App.Placement(Vector(0, 0, -4), App.Rotation())
sketch13.addGeometry([
    Part.LineSegment(Vector(-30.306635, 22.896242, 0), Vector(-10.800105, 6.965963, 0)),
    Part.LineSegment(Vector(-10.800105, 6.965963, 0), Vector(10.800105, 6.965963, 0)),
    Part.LineSegment(Vector(10.800105, 6.965963, 0), Vector(30.306635, 22.896242, 0)),
    Part.LineSegment(Vector(30.306635, 22.896242, 0), Vector(14.400139, -15.058227, 0)),
    Part.LineSegment(Vector(14.400139, -15.058227, 0), Vector(-14.400139, -15.058227, 0)),
    Part.LineSegment(Vector(-14.400139, -15.058227, 0), Vector(-30.306635, 22.896242, 0)),
], False)
sketch13.addConstraint([
    Sketcher.Constraint("Coincident", 0, 2, 1, 1),
    Sketcher.Constraint("Coincident", 1, 2, 2, 1),
    Sketcher.Constraint("Coincident", 2, 2, 3, 1),
    Sketcher.Constraint("Coincident", 3, 2, 4, 1),
    Sketcher.Constraint("Coincident", 4, 2, 5, 1),
    Sketcher.Constraint("Coincident", 5, 2, 0, 1),
    Sketcher.Constraint("Horizontal", 1),
    Sketcher.Constraint("Horizontal", 4),
    Sketcher.Constraint("Symmetric", 2, 2, 5, 2, -2),
    Sketcher.Constraint("Equal", 0, 2),
    Sketcher.Constraint("Equal", 3, 5),
    Sketcher.Constraint("DistanceX", 1, 1, 1, 2, Q("21.600209 mm")),
    Sketcher.Constraint("DistanceX", 4, 2, 4, 1, Q("28.800279 mm")),
    Sketcher.Constraint("DistanceY", -1, 1, 2, 2, Q("22.896242 mm")),
    Sketcher.Constraint("DistanceX", 1, 2, 2, 2, Q("19.506531 mm")),
    Sketcher.Constraint("DistanceY", 1, 2, 2, 2, Q("15.930279 mm")),
    Sketcher.Constraint("DistanceY", 3, 2, 1, 2, Q("22.02419 mm")),
])
pad4 = doc.addObject("PartDesign::Pad", "Pad003")
body.addObject(pad4)
pad4.Profile = sketch13
pad4.Length = 2.5

sketch14 = doc.addObject("Sketcher::SketchObject", "Sketch013")
body.addObject(sketch14)
sketch14.AttachmentSupport = (doc.XZ_Plane, [""])
sketch14.MapMode = "FlatFace"
sketch14.AttachmentOffset = App.Placement(Vector(0, 0, -4), App.Rotation())
sketch14.addGeometry([
    Part.LineSegment(Vector(-28.800279, -40, 0), Vector(-10.800105, 6.965963, 0)),
    Part.LineSegment(Vector(-10.800105, 6.965963, 0), Vector(10.800105, 6.965963, 0)),
    Part.LineSegment(Vector(10.800105, 6.965963, 0), Vector(28.800279, -40, 0)),
    Part.LineSegment(Vector(28.800279, -40, 0), Vector(14.400139, -15.058227, 0)),
    Part.LineSegment(Vector(14.400139, -15.058227, 0), Vector(-14.400139, -15.058227, 0)),
    Part.LineSegment(Vector(-14.400139, -15.058227, 0), Vector(-28.800279, -40, 0)),
], False)
sketch14.addConstraint([
    Sketcher.Constraint("Coincident", 0, 2, 1, 1),
    Sketcher.Constraint("Coincident", 1, 2, 2, 1),
    Sketcher.Constraint("Coincident", 2, 2, 3, 1),
    Sketcher.Constraint("Coincident", 3, 2, 4, 1),
    Sketcher.Constraint("Coincident", 4, 2, 5, 1),
    Sketcher.Constraint("Coincident", 5, 2, 0, 1),
    Sketcher.Constraint("Horizontal", 1),
    Sketcher.Constraint("Horizontal", 4),
    Sketcher.Constraint("Symmetric", 2, 2, 5, 2, -2),
    Sketcher.Constraint("Equal", 0, 2),
    Sketcher.Constraint("Equal", 3, 5),
    Sketcher.Constraint("Angle", 3, Q("120 deg")),
    Sketcher.Constraint("DistanceY", 2, 2, -1, 1, Q("40 mm")),
    Sketcher.Constraint("DistanceX", 1, 1, 1, 2, Q("21.600209 mm")),
    Sketcher.Constraint("DistanceX", 4, 2, 4, 1, Q("28.800279 mm")),
    Sketcher.Constraint("Distance", 3, Q("28.800279 mm")),
    Sketcher.Constraint("DistanceY", 3, 2, 1, 2, Q("22.02419 mm")),
])
pocket10 = doc.addObject("PartDesign::Pocket", "Pocket009")
body.addObject(pocket10)
pocket10.Profile = sketch14
pocket10.Length = 2.5
pocket10.Reversed = True

sketch15 = doc.addObject("Sketcher::SketchObject", "Sketch014")
body.addObject(sketch15)
sketch15.AttachmentSupport = (doc.XZ_Plane, [""])
sketch15.MapMode = "FlatFace"
sketch15.AttachmentOffset = App.Placement(Vector(0, 0, -4), App.Rotation())
sketch15.addGeometry([
    Part.LineSegment(Vector(-50.195139, -59.303465, 0), Vector(-50.195139, -20.696535, 0)),
    Part.LineSegment(Vector(-50.195139, -20.696535, 0), Vector(-10.800105, 6.965963, 0)),
    Part.LineSegment(Vector(-10.800105, 6.965963, 0), Vector(-28.800279, -40, 0)),
    Part.LineSegment(Vector(-28.800279, -40, 0), Vector(-50.195139, -59.303465, 0)),
    Part.LineSegment(Vector(28.800279, -40, 0), Vector(10.800105, 6.965963, 0)),
    Part.LineSegment(Vector(10.800105, 6.965963, 0), Vector(50.1924, -20.693424, 0)),
    Part.LineSegment(Vector(50.1924, -20.693424, 0), Vector(50.1924, -59.306576, 0)),
    Part.LineSegment(Vector(50.1924, -59.306576, 0), Vector(28.800279, -40, 0)),
], False)
sketch15.addConstraint([
    Sketcher.Constraint("Coincident", 0, 2, 1, 1),
    Sketcher.Constraint("Coincident", 1, 2, 2, 1),
    Sketcher.Constraint("Coincident", 2, 2, 3, 1),
    Sketcher.Constraint("Coincident", 3, 2, 0, 1),
    Sketcher.Constraint("Coincident", 4, 2, 5, 1),
    Sketcher.Constraint("Coincident", 5, 2, 6, 1),
    Sketcher.Constraint("Coincident", 6, 2, 7, 1),
    Sketcher.Constraint("Coincident", 7, 2, 4, 1),
    Sketcher.Constraint("Vertical", 0),
    Sketcher.Constraint("Vertical", 6),
    Sketcher.Constraint("Symmetric", 1, 2, 4, 2, -2),
    Sketcher.Constraint("Symmetric", 2, 2, 7, 2, -2),
    Sketcher.Constraint("DistanceY", 2, 2, -1, 1, Q("40 mm")),
    Sketcher.Constraint("DistanceY", 0, 1, 0, 2, Q("38.60693 mm")),
    Sketcher.Constraint("DistanceX", -1, 1, 5, 2, Q("50.1924 mm")),
    Sketcher.Constraint("DistanceY", 0, 2, 1, 2, Q("27.662498 mm")),
    Sketcher.Constraint("DistanceY", 6, 2, 6, 1, Q("38.613153 mm")),
    Sketcher.Constraint("DistanceX", 0, 2, -1, 1, Q("50.195139 mm")),
    Sketcher.Constraint("DistanceX", 2, 2, -1, 1, Q("28.800279 mm")),
    Sketcher.Constraint("DistanceX", 1, 2, 4, 2, Q("21.600209 mm")),
    Sketcher.Constraint("DistanceY", 0, 2, 5, 2, Q("0.003111 mm")),
    Sketcher.Constraint("Distance", 2, Q("50.297196 mm")),
])
pocket11 = doc.addObject("PartDesign::Pocket", "Pocket010")
body.addObject(pocket11)
pocket11.Profile = sketch15
pocket11.Length = 2.5
pocket11.Reversed = True

sketch16 = doc.addObject("Sketcher::SketchObject", "Sketch015")
body.addObject(sketch16)
sketch16.AttachmentSupport = (doc.XZ_Plane, [""])
sketch16.MapMode = "FlatFace"
sketch16.AttachmentOffset = App.Placement(Vector(0, 0, -4), App.Rotation())
sketch16.addGeometry([
    Part.LineSegment(Vector(-45.02742, -59.303465, 0), Vector(-26.02742, -44.303465, 0)),
    Part.LineSegment(Vector(-26.02742, -44.303465, 0), Vector(-15.02742, -44.303465, 0)),
    Part.LineSegment(Vector(-15.02742, -44.303465, 0), Vector(-15.02742, -59.303465, 0)),
    Part.LineSegment(Vector(-15.02742, -59.303465, 0), Vector(-45.02742, -59.303465, 0)),
    Part.LineSegment(Vector(15.02742, -44.303465, 0), Vector(26.02742, -44.303465, 0)),
    Part.LineSegment(Vector(26.02742, -44.303465, 0), Vector(45.02742, -59.303465, 0)),
    Part.LineSegment(Vector(45.02742, -59.303465, 0), Vector(15.02742, -59.303465, 0)),
    Part.LineSegment(Vector(15.02742, -59.303465, 0), Vector(15.02742, -44.303465, 0)),
], False)
sketch16.addConstraint([
    Sketcher.Constraint("Coincident", 0, 2, 1, 1),
    Sketcher.Constraint("Coincident", 1, 2, 2, 1),
    Sketcher.Constraint("Coincident", 2, 2, 3, 1),
    Sketcher.Constraint("Coincident", 3, 2, 0, 1),
    Sketcher.Constraint("Coincident", 4, 2, 5, 1),
    Sketcher.Constraint("Coincident", 5, 2, 6, 1),
    Sketcher.Constraint("Coincident", 6, 2, 7, 1),
    Sketcher.Constraint("Coincident", 7, 2, 4, 1),
    Sketcher.Constraint("Horizontal", 1),
    Sketcher.Constraint("Vertical", 2),
    Sketcher.Constraint("Horizontal", 3),
    Sketcher.Constraint("Horizontal", 4),
    Sketcher.Constraint("Horizontal", 6),
    Sketcher.Constraint("Vertical", 7),
    Sketcher.Constraint("Symmetric", 0, 2, 4, 2, -2),
    Sketcher.Constraint("Symmetric", 3, 2, 5, 2, -2),
    Sketcher.Constraint("Equal", 1, 4),
    Sketcher.Constraint("DistanceX", 1, 1, 1, 2, Q("11 mm")),
    Sketcher.Constraint("DistanceX", 3, 2, 3, 1, Q("30 mm")),
    Sketcher.Constraint("DistanceY", 2, 2, 2, 1, Q("15 mm")),
    Sketcher.Constraint("DistanceX", 0, 2, -1, 1, Q("26.02742 mm")),
    Sketcher.Constraint("DistanceY", 0, 2, -1, 1, Q("44.303465 mm")),
])
pocket12 = doc.addObject("PartDesign::Pocket", "Pocket011")
body.addObject(pocket12)
pocket12.Profile = sketch16
pocket12.Length = 2.5
pocket12.Reversed = True

sketch17 = doc.addObject("Sketcher::SketchObject", "Sketch016")
body.addObject(sketch17)
sketch17.AttachmentSupport = (doc.XZ_Plane, [""])
sketch17.MapMode = "FlatFace"
sketch17.AttachmentOffset = App.Placement(Vector(0, 0, -4), App.Rotation())
sketch17.addGeometry([
    Part.LineSegment(Vector(-30.497622, -6.865286, 0), Vector(-21.600209, 25.672293, 0)),
    Part.LineSegment(Vector(-21.600209, 25.672293, 0), Vector(21.600209, 25.672293, 0)),
    Part.LineSegment(Vector(21.600209, 25.672293, 0), Vector(30.496252, -6.86373, 0)),
    Part.LineSegment(Vector(30.496252, -6.86373, 0), Vector(-30.497622, -6.865286, 0)),
], False)
sketch17.addConstraint([
    Sketcher.Constraint("Coincident", 0, 2, 1, 1),
    Sketcher.Constraint("Coincident", 1, 2, 2, 1),
    Sketcher.Constraint("Coincident", 2, 2, 3, 1),
    Sketcher.Constraint("Coincident", 3, 2, 0, 1),
    Sketcher.Constraint("Horizontal", 1),
    Sketcher.Constraint("DistanceX", 1, 1, 1, 2, Q("43.200418 mm")),
    Sketcher.Constraint("Distance", 0, Q("33.732151 mm")),
    Sketcher.Constraint("Distance", 2, Q("33.730289 mm")),
    Sketcher.Constraint("DistanceX", 0, 2, -1, 1, Q("21.600209 mm")),
    Sketcher.Constraint("DistanceY", 2, 2, -1, 1, Q("6.86373 mm")),
    Sketcher.Constraint("DistanceX", 3, 2, -1, 1, Q("30.497622 mm")),
    Sketcher.Constraint("DistanceX", 0, 2, 2, 2, Q("52.096461 mm")),
])
pocket13 = doc.addObject("PartDesign::Pocket", "Pocket012")
body.addObject(pocket13)
pocket13.Profile = sketch17
pocket13.Length = 2.5
pocket13.Reversed = True

sketch18 = doc.addObject("Sketcher::SketchObject", "Sketch017")
body.addObject(sketch18)
sketch18.AttachmentSupport = (doc.XZ_Plane, [""])
sketch18.MapMode = "FlatFace"
sketch18.AttachmentOffset = App.Placement(Vector(0, 0, -4), App.Rotation())
sketch18.addGeometry([
    Part.LineSegment(Vector(-85.791104, -35.804483, 0), Vector(-88.173482, -22.56905, 0)),
    Part.LineSegment(Vector(-88.173482, -22.56905, 0), Vector(-77.455909, -20.639887, 0)),
    Part.LineSegment(Vector(-77.455909, -20.639887, 0), Vector(-85.791104, -35.804483, 0)),
    Part.LineSegment(Vector(85.791104, -35.804483, 0), Vector(77.455909, -20.639887, 0)),
    Part.LineSegment(Vector(77.455909, -20.639887, 0), Vector(88.173482, -22.56905, 0)),
    Part.LineSegment(Vector(88.173482, -22.56905, 0), Vector(85.791104, -35.804483, 0)),
], False)
sketch18.addConstraint([
    Sketcher.Constraint("Coincident", 0, 2, 1, 1),
    Sketcher.Constraint("Coincident", 1, 2, 2, 1),
    Sketcher.Constraint("Coincident", 2, 2, 0, 1),
    Sketcher.Constraint("Coincident", 3, 2, 4, 1),
    Sketcher.Constraint("Coincident", 4, 2, 5, 1),
    Sketcher.Constraint("Coincident", 5, 2, 3, 1),
    Sketcher.Constraint("Symmetric", 1, 2, 3, 2, -2),
    Sketcher.Constraint("Symmetric", 0, 2, 4, 2, -2),
    Sketcher.Constraint("Symmetric", 2, 2, 5, 2, -2),
    Sketcher.Constraint("Perpendicular", 0, 1),
    Sketcher.Constraint("DistanceX", 0, 2, -1, 1, Q("88.173482 mm")),
    Sketcher.Constraint("DistanceY", 0, 2, -1, 1, Q("22.56905 mm")),
    Sketcher.Constraint("DistanceX", 1, 2, -1, 1, Q("77.455909 mm")),
    Sketcher.Constraint("Distance", 0, Q("13.448138 mm")),
    Sketcher.Constraint("Distance", 1, Q("10.889813 mm")),
])
pocket14 = doc.addObject("PartDesign::Pocket", "Pocket013")
body.addObject(pocket14)
pocket14.Profile = sketch18
pocket14.Length = 2.5
pocket14.Reversed = True
doc.recompute()

fillet = doc.addObject("PartDesign::Fillet", "Fillet")
body.addObject(fillet)
fillet.Base = (pocket14, edges_at(pocket14, [(0, 4, -99)]))
fillet.Radius = 2

doc.recompute()
